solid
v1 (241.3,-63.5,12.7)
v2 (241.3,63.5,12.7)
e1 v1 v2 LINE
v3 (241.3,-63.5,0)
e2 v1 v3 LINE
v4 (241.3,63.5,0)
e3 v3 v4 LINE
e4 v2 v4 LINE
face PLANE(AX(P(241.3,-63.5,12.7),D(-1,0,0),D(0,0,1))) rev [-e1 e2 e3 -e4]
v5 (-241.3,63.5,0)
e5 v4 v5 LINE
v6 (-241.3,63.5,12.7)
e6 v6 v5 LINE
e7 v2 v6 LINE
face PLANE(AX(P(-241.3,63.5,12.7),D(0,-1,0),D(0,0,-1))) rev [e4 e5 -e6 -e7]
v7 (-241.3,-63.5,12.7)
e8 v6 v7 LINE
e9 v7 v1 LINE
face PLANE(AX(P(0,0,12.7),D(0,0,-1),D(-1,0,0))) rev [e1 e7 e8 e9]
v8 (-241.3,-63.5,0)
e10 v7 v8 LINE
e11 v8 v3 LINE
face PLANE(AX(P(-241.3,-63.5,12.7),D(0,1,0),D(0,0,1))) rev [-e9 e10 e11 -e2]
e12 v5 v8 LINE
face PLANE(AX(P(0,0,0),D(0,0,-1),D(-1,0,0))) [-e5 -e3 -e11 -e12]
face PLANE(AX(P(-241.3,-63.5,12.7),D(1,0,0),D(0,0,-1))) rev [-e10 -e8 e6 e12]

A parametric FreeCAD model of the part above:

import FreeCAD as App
import Part
import Sketcher
from FreeCAD import Vector
Q = App.Units.Quantity

doc = App.newDocument("Part")
body = doc.addObject("PartDesign::Body", "Body")

sketch1 = doc.addObject("Sketcher::SketchObject", "Sketch")
body.addObject(sketch1)
sketch1.AttachmentSupport = (doc.XY_Plane, [""])
sketch1.MapMode = "FlatFace"
sketch1.addGeometry(Part.LineSegment(Vector(-241.3, 63.5, 0), Vector(-241.3, -63.5, 0)), False)
sketch1.addGeometry(Part.LineSegment(Vector(-241.3, -63.5, 0), Vector(241.3, -63.5, 0)), False)
sketch1.addGeometry(Part.LineSegment(Vector(241.3, -63.5, 0), Vector(241.3, 63.5, 0)), False)
sketch1.addGeometry(Part.LineSegment(Vector(241.3, 63.5, 0), Vector(-241.3, 63.5, 0)), False)
sketch1.addConstraint(Sketcher.Constraint("Coincident", 0, 2, 1, 1))
sketch1.addConstraint(Sketcher.Constraint("Coincident", 1, 2, 2, 1))
sketch1.addConstraint(Sketcher.Constraint("Coincident", 2, 2, 3, 1))
sketch1.addConstraint(Sketcher.Constraint("Coincident", 3, 2, 0, 1))
sketch1.addConstraint(Sketcher.Constraint("Vertical", 0))
sketch1.addConstraint(Sketcher.Constraint("Horizontal", 1))
sketch1.addConstraint(Sketcher.Constraint("Vertical", 2))
sketch1.addConstraint(Sketcher.Constraint("Horizontal", 3))
sketch1.addConstraint(Sketcher.Constraint("Symmetric", 0, 2, 2, 2, -1, 1))
sketch1.addConstraint(Sketcher.Constraint("DistanceX", 1, 1, 1, 2, Q("19 in")))
sketch1.addConstraint(Sketcher.Constraint("DistanceY", 0, 2, 0, 1, Q("5 in")))
pad1 = doc.addObject("PartDesign::Pad", "Pad")
body.addObject(pad1)
pad1.Profile = sketch1
pad1.Length = Q("0.5 in")

doc.recompute()
